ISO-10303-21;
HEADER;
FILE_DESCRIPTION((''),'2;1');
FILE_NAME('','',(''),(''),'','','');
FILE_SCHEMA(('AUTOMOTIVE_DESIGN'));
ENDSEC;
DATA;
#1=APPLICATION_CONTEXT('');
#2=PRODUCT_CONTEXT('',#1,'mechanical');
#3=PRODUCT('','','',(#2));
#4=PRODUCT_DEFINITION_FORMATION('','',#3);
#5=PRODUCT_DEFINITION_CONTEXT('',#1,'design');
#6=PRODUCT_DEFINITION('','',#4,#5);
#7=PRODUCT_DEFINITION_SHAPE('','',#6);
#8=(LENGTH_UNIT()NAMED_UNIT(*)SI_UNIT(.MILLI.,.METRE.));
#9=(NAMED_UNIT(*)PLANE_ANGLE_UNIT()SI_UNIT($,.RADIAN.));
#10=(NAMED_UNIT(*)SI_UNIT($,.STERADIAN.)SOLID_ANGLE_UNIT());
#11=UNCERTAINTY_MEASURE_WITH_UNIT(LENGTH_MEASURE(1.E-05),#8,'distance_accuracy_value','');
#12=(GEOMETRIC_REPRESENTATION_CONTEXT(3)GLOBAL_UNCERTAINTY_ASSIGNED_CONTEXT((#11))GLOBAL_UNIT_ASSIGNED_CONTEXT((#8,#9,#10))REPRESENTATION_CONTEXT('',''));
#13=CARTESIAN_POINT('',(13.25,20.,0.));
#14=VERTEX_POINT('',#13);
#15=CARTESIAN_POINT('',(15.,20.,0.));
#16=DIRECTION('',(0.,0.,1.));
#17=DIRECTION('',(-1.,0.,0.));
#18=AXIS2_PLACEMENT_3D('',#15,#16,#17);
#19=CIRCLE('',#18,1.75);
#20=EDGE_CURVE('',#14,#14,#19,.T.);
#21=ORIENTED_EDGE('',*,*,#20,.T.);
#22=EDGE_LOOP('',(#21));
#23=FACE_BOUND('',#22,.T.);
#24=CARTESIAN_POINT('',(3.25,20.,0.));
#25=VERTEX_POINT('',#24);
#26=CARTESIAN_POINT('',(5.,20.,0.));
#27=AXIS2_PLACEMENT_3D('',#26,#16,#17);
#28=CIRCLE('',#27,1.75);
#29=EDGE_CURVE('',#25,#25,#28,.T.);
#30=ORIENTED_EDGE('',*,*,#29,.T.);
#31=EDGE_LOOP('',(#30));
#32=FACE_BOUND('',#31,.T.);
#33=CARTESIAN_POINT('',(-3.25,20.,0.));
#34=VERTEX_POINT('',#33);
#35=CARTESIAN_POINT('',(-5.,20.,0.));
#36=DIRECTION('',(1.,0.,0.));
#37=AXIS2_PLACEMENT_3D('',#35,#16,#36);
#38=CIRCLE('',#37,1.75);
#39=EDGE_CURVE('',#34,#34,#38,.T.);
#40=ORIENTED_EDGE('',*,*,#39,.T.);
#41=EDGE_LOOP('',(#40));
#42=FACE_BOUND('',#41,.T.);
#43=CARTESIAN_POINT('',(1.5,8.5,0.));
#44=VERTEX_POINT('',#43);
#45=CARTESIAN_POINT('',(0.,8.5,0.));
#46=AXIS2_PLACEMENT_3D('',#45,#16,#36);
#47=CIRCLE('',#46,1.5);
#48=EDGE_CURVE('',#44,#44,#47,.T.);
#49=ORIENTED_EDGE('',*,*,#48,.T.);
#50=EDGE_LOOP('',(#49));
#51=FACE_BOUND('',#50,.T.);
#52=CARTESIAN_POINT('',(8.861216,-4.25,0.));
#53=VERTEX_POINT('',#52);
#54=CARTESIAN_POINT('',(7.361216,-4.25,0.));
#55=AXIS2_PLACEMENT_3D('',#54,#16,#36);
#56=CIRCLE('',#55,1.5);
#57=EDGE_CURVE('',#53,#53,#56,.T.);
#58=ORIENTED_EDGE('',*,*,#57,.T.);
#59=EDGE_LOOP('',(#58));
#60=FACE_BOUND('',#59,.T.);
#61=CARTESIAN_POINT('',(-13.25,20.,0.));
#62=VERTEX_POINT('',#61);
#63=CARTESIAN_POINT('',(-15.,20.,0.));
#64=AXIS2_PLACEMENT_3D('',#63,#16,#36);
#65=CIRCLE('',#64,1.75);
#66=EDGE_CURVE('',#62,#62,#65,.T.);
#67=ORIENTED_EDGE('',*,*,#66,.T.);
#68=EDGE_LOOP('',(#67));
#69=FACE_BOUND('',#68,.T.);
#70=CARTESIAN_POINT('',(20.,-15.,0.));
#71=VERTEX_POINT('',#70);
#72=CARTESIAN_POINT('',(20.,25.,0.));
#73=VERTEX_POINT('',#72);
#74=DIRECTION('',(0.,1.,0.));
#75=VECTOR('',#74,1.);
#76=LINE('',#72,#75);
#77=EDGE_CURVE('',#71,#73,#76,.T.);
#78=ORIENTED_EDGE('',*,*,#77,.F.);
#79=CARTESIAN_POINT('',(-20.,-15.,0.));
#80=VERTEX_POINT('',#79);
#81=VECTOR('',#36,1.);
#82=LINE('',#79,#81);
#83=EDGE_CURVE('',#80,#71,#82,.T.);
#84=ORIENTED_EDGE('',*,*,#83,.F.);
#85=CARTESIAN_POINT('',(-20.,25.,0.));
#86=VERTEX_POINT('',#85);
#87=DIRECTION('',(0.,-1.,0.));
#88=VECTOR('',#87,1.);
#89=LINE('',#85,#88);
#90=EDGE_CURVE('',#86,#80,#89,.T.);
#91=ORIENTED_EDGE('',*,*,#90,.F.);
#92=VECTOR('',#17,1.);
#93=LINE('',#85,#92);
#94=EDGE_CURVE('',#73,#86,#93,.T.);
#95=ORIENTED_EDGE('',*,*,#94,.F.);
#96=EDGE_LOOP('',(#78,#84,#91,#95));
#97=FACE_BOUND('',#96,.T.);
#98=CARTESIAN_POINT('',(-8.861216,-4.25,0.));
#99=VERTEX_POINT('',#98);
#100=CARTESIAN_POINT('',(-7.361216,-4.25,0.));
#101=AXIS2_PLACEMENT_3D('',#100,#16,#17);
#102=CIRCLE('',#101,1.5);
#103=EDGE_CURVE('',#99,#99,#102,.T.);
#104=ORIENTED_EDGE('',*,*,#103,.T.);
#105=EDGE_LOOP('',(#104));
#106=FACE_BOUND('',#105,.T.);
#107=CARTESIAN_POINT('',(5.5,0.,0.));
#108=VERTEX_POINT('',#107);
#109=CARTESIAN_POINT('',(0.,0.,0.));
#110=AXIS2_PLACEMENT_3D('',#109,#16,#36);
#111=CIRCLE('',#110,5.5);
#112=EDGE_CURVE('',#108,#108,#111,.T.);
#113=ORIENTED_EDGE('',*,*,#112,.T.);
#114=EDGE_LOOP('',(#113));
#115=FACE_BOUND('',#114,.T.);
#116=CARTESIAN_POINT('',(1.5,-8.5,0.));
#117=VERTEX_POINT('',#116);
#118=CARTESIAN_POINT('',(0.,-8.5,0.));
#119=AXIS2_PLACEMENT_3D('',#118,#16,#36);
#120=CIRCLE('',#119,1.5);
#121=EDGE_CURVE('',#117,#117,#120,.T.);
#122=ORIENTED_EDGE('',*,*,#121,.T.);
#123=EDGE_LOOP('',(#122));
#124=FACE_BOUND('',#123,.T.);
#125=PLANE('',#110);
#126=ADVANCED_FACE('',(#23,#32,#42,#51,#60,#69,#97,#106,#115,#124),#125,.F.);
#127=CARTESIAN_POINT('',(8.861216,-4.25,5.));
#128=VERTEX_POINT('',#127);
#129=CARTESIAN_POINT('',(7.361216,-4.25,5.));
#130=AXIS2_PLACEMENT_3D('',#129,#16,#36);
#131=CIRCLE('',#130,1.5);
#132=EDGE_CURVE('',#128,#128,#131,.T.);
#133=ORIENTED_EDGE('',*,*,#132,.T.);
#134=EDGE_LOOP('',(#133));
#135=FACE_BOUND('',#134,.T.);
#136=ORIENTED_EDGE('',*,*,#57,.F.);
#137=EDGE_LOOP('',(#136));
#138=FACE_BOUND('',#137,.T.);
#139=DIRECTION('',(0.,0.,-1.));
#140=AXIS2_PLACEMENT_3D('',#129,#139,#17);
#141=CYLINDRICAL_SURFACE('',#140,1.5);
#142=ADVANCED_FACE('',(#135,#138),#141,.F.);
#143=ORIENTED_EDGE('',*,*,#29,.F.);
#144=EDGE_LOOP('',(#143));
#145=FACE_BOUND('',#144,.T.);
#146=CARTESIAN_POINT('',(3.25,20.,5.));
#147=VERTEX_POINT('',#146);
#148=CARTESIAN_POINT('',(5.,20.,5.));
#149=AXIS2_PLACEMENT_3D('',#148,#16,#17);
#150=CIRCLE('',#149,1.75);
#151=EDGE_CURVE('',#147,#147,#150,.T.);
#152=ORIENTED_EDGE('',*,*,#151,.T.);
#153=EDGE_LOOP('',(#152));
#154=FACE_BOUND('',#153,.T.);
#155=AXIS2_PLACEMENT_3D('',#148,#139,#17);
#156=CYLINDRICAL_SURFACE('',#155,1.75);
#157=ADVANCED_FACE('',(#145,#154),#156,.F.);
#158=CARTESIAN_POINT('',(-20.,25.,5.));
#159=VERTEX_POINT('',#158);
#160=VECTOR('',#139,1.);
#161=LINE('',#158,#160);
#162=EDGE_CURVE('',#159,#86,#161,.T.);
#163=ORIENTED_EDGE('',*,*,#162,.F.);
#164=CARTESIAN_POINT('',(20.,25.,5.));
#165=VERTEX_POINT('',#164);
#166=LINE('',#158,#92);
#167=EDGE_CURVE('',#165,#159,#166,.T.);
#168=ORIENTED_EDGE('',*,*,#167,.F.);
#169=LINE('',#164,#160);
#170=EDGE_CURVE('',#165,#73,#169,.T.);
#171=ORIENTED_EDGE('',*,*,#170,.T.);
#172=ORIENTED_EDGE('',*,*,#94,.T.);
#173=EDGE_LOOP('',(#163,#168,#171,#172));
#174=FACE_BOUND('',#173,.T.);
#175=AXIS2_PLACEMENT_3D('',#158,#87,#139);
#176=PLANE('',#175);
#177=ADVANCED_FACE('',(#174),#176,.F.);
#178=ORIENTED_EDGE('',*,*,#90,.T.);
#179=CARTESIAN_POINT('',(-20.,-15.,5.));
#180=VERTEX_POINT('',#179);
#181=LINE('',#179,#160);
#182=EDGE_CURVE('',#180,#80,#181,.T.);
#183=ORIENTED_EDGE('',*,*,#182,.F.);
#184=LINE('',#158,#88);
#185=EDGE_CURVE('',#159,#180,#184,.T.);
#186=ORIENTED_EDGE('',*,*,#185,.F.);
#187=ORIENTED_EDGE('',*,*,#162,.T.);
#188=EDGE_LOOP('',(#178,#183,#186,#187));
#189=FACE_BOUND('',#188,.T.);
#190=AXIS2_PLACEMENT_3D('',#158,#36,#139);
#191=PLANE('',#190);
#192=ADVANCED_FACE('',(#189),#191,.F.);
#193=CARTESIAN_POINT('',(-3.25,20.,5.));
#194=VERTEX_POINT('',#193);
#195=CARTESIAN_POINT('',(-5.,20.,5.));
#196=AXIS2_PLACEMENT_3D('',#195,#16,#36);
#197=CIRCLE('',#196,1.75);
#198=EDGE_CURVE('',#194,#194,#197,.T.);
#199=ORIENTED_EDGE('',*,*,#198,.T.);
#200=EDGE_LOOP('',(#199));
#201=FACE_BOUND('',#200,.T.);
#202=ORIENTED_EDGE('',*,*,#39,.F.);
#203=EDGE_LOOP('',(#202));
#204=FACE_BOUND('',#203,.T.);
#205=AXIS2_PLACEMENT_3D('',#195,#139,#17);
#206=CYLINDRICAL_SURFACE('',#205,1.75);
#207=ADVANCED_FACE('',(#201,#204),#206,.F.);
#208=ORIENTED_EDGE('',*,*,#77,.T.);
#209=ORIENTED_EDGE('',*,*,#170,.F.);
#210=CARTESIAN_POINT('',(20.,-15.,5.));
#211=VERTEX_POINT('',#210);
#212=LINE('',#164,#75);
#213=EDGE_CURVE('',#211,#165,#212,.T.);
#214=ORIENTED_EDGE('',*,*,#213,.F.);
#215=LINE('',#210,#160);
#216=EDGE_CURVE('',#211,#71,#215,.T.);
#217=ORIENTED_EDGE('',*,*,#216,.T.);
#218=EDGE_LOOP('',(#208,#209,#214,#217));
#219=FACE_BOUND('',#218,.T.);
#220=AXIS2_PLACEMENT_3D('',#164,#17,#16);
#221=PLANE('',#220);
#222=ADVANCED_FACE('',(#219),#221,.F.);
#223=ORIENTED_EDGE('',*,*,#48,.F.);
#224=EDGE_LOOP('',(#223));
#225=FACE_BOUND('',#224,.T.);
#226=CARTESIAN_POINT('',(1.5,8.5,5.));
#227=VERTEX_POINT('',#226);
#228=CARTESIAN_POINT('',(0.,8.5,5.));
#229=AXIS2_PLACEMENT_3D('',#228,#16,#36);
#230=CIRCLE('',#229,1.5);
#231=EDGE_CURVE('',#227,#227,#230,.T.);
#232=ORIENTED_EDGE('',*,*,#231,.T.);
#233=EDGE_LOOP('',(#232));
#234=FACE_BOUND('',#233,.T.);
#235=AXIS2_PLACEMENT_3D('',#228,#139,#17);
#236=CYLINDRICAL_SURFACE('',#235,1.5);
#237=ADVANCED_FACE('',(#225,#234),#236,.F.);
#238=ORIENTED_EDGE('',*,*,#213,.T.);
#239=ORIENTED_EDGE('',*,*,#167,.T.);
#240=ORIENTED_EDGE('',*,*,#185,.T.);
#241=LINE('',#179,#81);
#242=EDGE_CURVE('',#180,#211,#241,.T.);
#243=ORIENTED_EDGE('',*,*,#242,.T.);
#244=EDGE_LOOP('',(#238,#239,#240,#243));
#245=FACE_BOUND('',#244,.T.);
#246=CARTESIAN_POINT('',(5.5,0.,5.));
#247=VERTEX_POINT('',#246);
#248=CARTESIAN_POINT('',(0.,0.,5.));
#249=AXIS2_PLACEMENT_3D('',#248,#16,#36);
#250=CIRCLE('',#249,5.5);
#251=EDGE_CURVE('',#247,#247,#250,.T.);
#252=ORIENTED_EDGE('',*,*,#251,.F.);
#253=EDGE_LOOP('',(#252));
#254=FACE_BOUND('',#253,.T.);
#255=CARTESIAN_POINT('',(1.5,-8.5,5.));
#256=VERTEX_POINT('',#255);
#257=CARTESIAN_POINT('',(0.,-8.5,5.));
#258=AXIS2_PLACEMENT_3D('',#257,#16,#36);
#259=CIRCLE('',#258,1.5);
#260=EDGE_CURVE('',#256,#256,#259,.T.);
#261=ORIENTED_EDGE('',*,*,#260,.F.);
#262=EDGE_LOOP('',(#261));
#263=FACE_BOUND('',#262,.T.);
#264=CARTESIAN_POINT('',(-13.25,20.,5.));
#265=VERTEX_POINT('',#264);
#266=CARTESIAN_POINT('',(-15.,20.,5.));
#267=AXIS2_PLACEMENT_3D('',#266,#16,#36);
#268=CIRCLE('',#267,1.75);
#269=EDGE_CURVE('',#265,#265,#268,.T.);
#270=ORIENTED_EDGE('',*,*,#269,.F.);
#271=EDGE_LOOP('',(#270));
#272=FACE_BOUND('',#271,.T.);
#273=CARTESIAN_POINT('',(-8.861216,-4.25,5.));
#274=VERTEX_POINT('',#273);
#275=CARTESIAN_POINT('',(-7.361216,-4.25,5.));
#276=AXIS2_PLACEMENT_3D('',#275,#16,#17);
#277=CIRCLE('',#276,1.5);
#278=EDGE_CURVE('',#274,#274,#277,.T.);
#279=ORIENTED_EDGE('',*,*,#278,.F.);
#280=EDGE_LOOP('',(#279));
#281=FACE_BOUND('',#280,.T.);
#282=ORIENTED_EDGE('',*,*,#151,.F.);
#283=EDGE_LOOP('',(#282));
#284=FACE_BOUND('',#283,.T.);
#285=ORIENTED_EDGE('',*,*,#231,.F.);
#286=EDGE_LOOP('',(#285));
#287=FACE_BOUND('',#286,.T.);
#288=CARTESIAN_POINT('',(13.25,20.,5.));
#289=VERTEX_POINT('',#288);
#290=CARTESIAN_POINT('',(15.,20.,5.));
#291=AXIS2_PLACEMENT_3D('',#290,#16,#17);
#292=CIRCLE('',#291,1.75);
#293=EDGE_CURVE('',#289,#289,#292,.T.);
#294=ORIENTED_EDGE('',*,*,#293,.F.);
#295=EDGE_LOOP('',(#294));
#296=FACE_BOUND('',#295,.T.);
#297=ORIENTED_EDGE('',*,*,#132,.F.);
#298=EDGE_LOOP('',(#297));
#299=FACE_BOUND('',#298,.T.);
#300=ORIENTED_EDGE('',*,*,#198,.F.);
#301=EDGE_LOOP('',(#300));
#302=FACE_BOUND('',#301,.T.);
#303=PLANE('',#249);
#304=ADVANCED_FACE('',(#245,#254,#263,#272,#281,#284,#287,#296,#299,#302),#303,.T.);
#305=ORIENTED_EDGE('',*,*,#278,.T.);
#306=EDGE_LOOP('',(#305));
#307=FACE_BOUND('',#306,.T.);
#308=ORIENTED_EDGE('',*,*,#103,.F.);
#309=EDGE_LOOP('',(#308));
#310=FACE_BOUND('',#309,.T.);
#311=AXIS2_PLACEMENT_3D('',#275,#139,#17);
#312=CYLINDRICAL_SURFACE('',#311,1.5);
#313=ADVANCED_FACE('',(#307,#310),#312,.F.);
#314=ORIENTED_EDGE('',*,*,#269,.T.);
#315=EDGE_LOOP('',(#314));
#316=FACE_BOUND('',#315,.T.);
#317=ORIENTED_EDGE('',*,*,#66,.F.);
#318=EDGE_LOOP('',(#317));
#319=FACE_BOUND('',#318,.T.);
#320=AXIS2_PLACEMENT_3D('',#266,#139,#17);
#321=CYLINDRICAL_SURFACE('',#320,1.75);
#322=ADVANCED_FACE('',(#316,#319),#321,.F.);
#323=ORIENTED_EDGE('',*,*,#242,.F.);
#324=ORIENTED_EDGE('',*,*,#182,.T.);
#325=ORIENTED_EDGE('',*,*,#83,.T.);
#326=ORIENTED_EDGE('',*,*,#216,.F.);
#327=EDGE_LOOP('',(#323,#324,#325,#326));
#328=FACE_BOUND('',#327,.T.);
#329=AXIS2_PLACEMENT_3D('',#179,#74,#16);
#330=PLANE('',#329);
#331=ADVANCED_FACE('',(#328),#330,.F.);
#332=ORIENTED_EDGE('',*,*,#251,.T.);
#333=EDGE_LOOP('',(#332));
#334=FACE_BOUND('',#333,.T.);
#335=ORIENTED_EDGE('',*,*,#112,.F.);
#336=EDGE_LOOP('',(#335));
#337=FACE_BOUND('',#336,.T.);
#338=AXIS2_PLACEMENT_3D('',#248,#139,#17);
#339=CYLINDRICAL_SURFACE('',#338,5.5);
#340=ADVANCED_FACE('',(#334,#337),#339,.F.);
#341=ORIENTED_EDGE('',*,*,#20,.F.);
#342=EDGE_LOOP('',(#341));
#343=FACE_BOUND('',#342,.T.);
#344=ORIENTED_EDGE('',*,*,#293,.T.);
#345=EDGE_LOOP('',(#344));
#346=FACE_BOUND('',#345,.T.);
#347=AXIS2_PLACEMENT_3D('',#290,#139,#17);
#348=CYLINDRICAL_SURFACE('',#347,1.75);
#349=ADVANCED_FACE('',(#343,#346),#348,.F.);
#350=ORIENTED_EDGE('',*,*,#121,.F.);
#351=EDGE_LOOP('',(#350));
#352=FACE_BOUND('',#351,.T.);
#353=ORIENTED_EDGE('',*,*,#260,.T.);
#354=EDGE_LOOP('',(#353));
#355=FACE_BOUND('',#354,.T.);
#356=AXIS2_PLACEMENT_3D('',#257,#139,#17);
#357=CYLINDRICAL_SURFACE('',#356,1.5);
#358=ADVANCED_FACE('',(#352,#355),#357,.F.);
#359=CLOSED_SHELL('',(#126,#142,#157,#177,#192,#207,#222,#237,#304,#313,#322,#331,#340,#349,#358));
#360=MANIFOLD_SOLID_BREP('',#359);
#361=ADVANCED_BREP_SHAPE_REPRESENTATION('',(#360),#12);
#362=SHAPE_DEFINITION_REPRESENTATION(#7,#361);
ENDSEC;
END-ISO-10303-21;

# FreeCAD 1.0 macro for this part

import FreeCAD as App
import Part
import Sketcher
from FreeCAD import Vector


def add_polygon(sketch, points):
    """Adds a closed chain of lines whose ends are joined by coincident constraints."""
    first, n = sketch.GeometryCount, len(points)
    for a, b in zip(points, points[1:] + points[:1]):
        sketch.addGeometry(Part.LineSegment(App.Vector(*a, 0), App.Vector(*b, 0)), False)
    for i in range(n):
        sketch.addConstraint(Sketcher.Constraint("Coincident", first + i, 2, first + (i + 1) % n, 1))

doc = App.newDocument("Part")
params = doc.addObject("Spreadsheet::Sheet", "Params")
for row, (alias, value) in enumerate([
    ("sketch1_diameter", "3 mm"),
    ("sketch1_diameter2", "11 mm"),
    ("sketch1_diameter3", "3.5 mm"),
    ("sketch1_width", "40 mm"),
    ("pad1_length", "5 mm"),
], start=1):
    params.set(f"A{row}", alias)
    params.set(f"B{row}", "=" + value)
    params.setAlias(f"B{row}", alias)

body = doc.addObject("PartDesign::Body", "Body")

# Sketch on XY plane
sketch1 = body.newObject("Sketcher::SketchObject", "Sketch")
sketch1.AttachmentSupport = (doc.getObject("XY_Plane"), [""])
sketch1.MapMode = "FlatFace"
add_polygon(sketch1, [(-20, 25), (-20, -15), (20, -15), (20, 25)])  # lines 0-3
sketch1.addGeometry(Part.Circle(Vector(-7.361216, -4.25, 0), Vector(0, 0, 1), 1.5), False)  # 4
sketch1.addGeometry(Part.Circle(Vector(0, -8.5, 0), Vector(0, 0, 1), 1.5), False)  # 5
sketch1.addGeometry(Part.Circle(Vector(7.361216, -4.25, 0), Vector(0, 0, 1), 1.5), False)  # 6
sketch1.addGeometry(Part.Circle(Vector(0, 0, 0), Vector(0, 0, 1), 5.5), False)  # 7
sketch1.addGeometry(Part.Circle(Vector(-15, 20, 0), Vector(0, 0, 1), 1.75), False)  # 8
sketch1.addGeometry(Part.Circle(Vector(-5, 20, 0), Vector(0, 0, 1), 1.75), False)  # 9
sketch1.addGeometry(Part.Circle(Vector(0, 8.5, 0), Vector(0, 0, 1), 1.5), False)  # 10
sketch1.addGeometry(Part.Circle(Vector(5, 20, 0), Vector(0, 0, 1), 1.75), False)  # 11
sketch1.addGeometry(Part.Circle(Vector(15, 20, 0), Vector(0, 0, 1), 1.75), False)  # 12
sketch1.addConstraint(Sketcher.Constraint("Vertical", 0))
sketch1.addConstraint(Sketcher.Constraint("Horizontal", 1))
sketch1.addConstraint(Sketcher.Constraint("Vertical", 2))
sketch1.addConstraint(Sketcher.Constraint("Horizontal", 3))
sketch1.addConstraint(Sketcher.Constraint("Coincident", 7, 3, -1, 1))
sketch1.addConstraint(Sketcher.Constraint("Equal", 4, 5))
sketch1.addConstraint(Sketcher.Constraint("Equal", 5, 6))
sketch1.addConstraint(Sketcher.Constraint("Equal", 8, 9))
sketch1.addConstraint(Sketcher.Constraint("Equal", 6, 10))
sketch1.addConstraint(Sketcher.Constraint("Equal", 9, 11))
sketch1.addConstraint(Sketcher.Constraint("Equal", 11, 12))
sketch1.addConstraint(Sketcher.Constraint("Symmetric", 5, 3, 10, 3, -1, 1))
sketch1.addConstraint(Sketcher.Constraint("Symmetric", 4, 3, 6, 3, -2))
sketch1.addConstraint(Sketcher.Constraint("Symmetric", 9, 3, 11, 3, -2))
sketch1.addConstraint(Sketcher.Constraint("Symmetric", 8, 3, 12, 3, -2))
sketch1.addConstraint(Sketcher.Constraint("PointOnObject", 5, 3, -2))
sketch1.addConstraint(Sketcher.Constraint("Horizontal", 8, 3, 9, 3))
sketch1.addConstraint(Sketcher.Constraint("Equal", 3, 0))
sketch1.addConstraint(Sketcher.Constraint("Diameter", 4, 3.0))
sketch1.addConstraint(Sketcher.Constraint("Diameter", 7, 11.0))
sketch1.addConstraint(Sketcher.Constraint("Diameter", 8, 3.5))
sketch1.addConstraint(Sketcher.Constraint("DistanceX", 1, 1, 1, 2, 40.0))
sketch1.addConstraint(Sketcher.Constraint("DistanceX", 8, 3, -1, 1, 15.0))
sketch1.addConstraint(Sketcher.Constraint("DistanceY", -1, 1, 8, 3, 20.0))
sketch1.addConstraint(Sketcher.Constraint("DistanceX", 9, 3, -1, 1, 5.0))
sketch1.addConstraint(Sketcher.Constraint("DistanceX", 0, 2, -1, 1, 20.0))
sketch1.addConstraint(Sketcher.Constraint("DistanceY", 0, 2, -1, 1, 15.0))
sketch1.addConstraint(Sketcher.Constraint("DistanceY", 5, 3, 10, 3, 17.0))
sketch1.addConstraint(Sketcher.Constraint("DistanceY", 4, 3, -1, 1, 4.25))
sketch1.addConstraint(Sketcher.Constraint("DistanceX", 4, 3, 6, 3, 14.722432))
sketch1.setExpression("Constraints[22]", "Params.sketch1_diameter")
sketch1.setExpression("Constraints[23]", "Params.sketch1_diameter2")
sketch1.setExpression("Constraints[24]", "Params.sketch1_diameter3")
sketch1.setExpression("Constraints[25]", "Params.sketch1_width")
pad1 = body.newObject("PartDesign::Pad", "Pad")
pad1.Profile = sketch1
pad1.setExpression("Length", "Params.pad1_length")

doc.recompute()
